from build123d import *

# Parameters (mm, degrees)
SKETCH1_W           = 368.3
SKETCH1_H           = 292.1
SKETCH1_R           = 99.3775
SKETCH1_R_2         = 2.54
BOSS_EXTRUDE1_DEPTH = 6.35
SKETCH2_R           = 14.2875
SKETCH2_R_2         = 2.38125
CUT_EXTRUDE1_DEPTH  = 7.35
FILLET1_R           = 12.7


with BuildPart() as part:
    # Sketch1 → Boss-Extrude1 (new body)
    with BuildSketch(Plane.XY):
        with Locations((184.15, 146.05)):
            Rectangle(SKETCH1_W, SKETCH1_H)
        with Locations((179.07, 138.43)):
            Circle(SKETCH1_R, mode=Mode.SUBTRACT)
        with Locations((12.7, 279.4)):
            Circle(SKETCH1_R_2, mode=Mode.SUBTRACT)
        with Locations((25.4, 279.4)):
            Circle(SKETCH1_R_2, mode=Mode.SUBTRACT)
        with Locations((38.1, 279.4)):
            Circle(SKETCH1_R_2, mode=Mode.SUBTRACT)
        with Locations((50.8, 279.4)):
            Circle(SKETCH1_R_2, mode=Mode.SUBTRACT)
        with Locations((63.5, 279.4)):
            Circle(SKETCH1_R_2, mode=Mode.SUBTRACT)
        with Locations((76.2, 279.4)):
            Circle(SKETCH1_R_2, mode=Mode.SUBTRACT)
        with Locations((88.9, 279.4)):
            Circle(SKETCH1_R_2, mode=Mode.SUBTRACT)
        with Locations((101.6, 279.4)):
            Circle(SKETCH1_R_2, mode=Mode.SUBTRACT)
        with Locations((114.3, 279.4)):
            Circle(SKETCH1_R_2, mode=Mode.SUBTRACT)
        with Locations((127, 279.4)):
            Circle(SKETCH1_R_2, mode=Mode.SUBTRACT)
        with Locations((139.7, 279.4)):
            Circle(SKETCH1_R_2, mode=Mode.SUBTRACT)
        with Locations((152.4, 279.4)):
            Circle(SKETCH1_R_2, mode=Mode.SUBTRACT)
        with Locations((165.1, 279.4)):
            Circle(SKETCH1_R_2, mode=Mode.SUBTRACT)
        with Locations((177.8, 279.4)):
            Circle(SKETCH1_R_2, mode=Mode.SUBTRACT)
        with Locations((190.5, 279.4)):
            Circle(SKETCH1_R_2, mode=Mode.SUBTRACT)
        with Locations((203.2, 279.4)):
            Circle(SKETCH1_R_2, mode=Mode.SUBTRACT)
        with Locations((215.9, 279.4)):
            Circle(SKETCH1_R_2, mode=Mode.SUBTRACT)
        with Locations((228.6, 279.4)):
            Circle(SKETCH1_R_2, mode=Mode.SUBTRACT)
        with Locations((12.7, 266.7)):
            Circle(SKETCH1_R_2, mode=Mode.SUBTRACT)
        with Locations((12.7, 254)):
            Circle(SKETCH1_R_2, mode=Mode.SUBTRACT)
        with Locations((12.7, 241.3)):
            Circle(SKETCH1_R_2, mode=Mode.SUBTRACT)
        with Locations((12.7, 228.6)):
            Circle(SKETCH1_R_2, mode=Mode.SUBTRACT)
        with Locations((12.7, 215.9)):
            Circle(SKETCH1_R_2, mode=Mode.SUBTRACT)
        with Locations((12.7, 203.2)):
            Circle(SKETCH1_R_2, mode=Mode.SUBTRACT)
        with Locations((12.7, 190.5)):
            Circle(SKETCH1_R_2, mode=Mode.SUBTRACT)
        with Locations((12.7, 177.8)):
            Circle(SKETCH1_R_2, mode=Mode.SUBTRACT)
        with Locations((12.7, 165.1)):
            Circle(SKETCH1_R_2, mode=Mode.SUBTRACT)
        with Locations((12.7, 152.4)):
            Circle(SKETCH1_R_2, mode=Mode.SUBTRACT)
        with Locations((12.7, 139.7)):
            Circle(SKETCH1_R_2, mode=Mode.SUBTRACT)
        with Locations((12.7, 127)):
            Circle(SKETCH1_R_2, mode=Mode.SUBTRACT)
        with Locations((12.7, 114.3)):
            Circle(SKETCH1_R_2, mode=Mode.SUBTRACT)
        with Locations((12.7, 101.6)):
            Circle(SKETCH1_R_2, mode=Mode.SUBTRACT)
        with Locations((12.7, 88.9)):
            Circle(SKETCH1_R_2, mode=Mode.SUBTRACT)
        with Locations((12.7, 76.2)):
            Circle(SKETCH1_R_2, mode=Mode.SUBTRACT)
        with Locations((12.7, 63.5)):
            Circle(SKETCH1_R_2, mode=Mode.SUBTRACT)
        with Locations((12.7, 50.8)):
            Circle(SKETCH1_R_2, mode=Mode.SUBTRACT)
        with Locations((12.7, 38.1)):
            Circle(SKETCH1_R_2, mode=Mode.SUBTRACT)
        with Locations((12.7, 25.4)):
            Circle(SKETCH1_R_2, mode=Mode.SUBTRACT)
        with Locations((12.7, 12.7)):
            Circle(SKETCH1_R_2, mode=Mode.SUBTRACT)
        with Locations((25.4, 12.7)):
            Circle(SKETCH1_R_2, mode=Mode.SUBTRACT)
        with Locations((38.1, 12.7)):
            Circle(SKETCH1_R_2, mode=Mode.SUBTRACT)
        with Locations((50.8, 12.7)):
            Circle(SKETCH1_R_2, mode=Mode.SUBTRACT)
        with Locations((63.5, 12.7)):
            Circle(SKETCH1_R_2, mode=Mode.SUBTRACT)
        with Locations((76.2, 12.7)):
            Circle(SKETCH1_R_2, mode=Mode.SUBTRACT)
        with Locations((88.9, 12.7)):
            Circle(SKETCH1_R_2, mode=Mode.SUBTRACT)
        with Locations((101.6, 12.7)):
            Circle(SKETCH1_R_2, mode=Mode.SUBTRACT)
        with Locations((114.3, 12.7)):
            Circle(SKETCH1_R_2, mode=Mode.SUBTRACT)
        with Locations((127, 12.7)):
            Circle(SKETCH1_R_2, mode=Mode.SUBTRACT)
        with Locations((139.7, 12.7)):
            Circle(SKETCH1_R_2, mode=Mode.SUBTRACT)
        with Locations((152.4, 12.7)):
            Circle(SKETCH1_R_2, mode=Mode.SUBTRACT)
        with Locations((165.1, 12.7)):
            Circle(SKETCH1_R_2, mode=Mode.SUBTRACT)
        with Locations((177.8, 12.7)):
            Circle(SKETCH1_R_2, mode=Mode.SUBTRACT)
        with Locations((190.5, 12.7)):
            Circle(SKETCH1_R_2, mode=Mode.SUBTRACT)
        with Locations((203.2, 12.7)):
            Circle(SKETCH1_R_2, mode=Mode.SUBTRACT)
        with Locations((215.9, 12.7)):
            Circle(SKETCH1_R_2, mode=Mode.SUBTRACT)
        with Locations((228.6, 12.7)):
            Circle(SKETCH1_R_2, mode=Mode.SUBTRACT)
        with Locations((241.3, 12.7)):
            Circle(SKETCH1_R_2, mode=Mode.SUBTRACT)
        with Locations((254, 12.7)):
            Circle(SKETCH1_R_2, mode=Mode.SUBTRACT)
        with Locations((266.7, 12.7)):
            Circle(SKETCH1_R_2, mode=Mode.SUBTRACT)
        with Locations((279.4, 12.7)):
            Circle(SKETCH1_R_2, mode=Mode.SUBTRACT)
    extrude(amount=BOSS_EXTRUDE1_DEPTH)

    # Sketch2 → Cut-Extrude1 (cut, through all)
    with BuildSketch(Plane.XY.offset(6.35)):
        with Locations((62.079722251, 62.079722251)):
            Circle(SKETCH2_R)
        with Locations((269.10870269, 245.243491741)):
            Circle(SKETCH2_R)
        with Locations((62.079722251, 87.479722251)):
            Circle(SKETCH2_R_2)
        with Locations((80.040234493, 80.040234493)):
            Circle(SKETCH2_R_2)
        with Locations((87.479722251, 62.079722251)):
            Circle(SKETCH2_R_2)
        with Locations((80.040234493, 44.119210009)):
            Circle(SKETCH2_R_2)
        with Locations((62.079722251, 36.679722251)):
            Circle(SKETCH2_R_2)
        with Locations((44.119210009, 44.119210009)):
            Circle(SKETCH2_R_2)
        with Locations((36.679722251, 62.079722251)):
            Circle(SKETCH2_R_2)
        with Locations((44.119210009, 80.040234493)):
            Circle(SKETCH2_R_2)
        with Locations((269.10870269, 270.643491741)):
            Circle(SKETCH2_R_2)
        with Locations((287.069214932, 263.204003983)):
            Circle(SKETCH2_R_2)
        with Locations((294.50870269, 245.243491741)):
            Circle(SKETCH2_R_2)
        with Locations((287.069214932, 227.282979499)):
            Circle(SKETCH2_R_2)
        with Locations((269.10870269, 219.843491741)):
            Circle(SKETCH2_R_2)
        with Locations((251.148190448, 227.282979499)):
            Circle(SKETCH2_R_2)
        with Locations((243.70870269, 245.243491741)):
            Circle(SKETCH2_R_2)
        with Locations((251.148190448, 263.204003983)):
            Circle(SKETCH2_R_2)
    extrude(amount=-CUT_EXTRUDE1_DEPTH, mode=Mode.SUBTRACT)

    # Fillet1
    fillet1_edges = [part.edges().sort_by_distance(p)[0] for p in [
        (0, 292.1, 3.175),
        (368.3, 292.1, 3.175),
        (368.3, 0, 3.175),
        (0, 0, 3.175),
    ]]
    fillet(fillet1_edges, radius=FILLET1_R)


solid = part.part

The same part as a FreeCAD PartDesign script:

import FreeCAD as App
import Part
import Sketcher
Q = App.Units.Quantity


def edges_at(feature, points):
    """Names of the edges that pass closest to the given points."""
    edges = feature.Shape.Edges
    near = lambda p: min(range(len(edges)), key=lambda i: edges[i].distToShape(Part.Vertex(*p))[0])
    return sorted({f"Edge{near(p) + 1}" for p in points})


def add_polygon(sketch, points):
    """Adds a closed chain of lines whose ends are joined by coincident constraints."""
    first, n = sketch.GeometryCount, len(points)
    for a, b in zip(points, points[1:] + points[:1]):
        sketch.addGeometry(Part.LineSegment(App.Vector(*a, 0), App.Vector(*b, 0)), False)
    for i in range(n):
        sketch.addConstraint(Sketcher.Constraint("Coincident", first + i, 2, first + (i + 1) % n, 1))

doc = App.newDocument("Part")
body = doc.addObject("PartDesign::Body", "Body")

sketch1 = doc.addObject("Sketcher::SketchObject", "Sketch")
body.addObject(sketch1)
sketch1.AttachmentSupport = (doc.XY_Plane, [""])
sketch1.MapMode = "FlatFace"
add_polygon(sketch1, [(0, 292.1), (0, 0), (368.3, 0), (368.3, 292.1)])
sketch1.addGeometry(Part.Circle(App.Vector(12.7, 12.7, 0), App.Vector(0, 0, 1), 2.54), False)
sketch1.addGeometry(Part.Circle(App.Vector(25.4, 12.7, 0), App.Vector(0, 0, 1), 2.54), False)
sketch1.addGeometry(Part.Circle(App.Vector(12.7, 25.4, 0), App.Vector(0, 0, 1), 2.54), False)
sketch1.addGeometry(Part.Circle(App.Vector(38.1, 12.7, 0), App.Vector(0, 0, 1), 2.54), False)
sketch1.addGeometry(Part.Circle(App.Vector(12.7, 38.1, 0), App.Vector(0, 0, 1), 2.54), False)
sketch1.addGeometry(Part.Circle(App.Vector(50.8, 12.7, 0), App.Vector(0, 0, 1), 2.54), False)
sketch1.addGeometry(Part.Circle(App.Vector(63.5, 12.7, 0), App.Vector(0, 0, 1), 2.54), False)
sketch1.addGeometry(Part.Circle(App.Vector(76.2, 12.7, 0), App.Vector(0, 0, 1), 2.54), False)
sketch1.addGeometry(Part.Circle(App.Vector(12.7, 50.8, 0), App.Vector(0, 0, 1), 2.54), False)
sketch1.addGeometry(Part.Circle(App.Vector(12.7, 63.5, 0), App.Vector(0, 0, 1), 2.54), False)
sketch1.addGeometry(Part.Circle(App.Vector(12.7, 76.2, 0), App.Vector(0, 0, 1), 2.54), False)
sketch1.addGeometry(Part.Circle(App.Vector(88.9, 12.7, 0), App.Vector(0, 0, 1), 2.54), False)
sketch1.addGeometry(Part.Circle(App.Vector(101.6, 12.7, 0), App.Vector(0, 0, 1), 2.54), False)
sketch1.addGeometry(Part.Circle(App.Vector(114.3, 12.7, 0), App.Vector(0, 0, 1), 2.54), False)
sketch1.addGeometry(Part.Circle(App.Vector(127, 12.7, 0), App.Vector(0, 0, 1), 2.54), False)
sketch1.addGeometry(Part.Circle(App.Vector(139.7, 12.7, 0), App.Vector(0, 0, 1), 2.54), False)
sketch1.addGeometry(Part.Circle(App.Vector(12.7, 88.9, 0), App.Vector(0, 0, 1), 2.54), False)
sketch1.addGeometry(Part.Circle(App.Vector(12.7, 101.6, 0), App.Vector(0, 0, 1), 2.54), False)
sketch1.addGeometry(Part.Circle(App.Vector(12.7, 114.3, 0), App.Vector(0, 0, 1), 2.54), False)
sketch1.addGeometry(Part.Circle(App.Vector(12.7, 127, 0), App.Vector(0, 0, 1), 2.54), False)
sketch1.addGeometry(Part.Circle(App.Vector(12.7, 139.7, 0), App.Vector(0, 0, 1), 2.54), False)
sketch1.addGeometry(Part.Circle(App.Vector(152.4, 12.7, 0), App.Vector(0, 0, 1), 2.54), False)
sketch1.addGeometry(Part.Circle(App.Vector(165.1, 12.7, 0), App.Vector(0, 0, 1), 2.54), False)
sketch1.addGeometry(Part.Circle(App.Vector(177.8, 12.7, 0), App.Vector(0, 0, 1), 2.54), False)
sketch1.addGeometry(Part.Circle(App.Vector(190.5, 12.7, 0), App.Vector(0, 0, 1), 2.54), False)
sketch1.addGeometry(Part.Circle(App.Vector(203.2, 12.7, 0), App.Vector(0, 0, 1), 2.54), False)
sketch1.addGeometry(Part.Circle(App.Vector(215.9, 12.7, 0), App.Vector(0, 0, 1), 2.54), False)
sketch1.addGeometry(Part.Circle(App.Vector(228.6, 12.7, 0), App.Vector(0, 0, 1), 2.54), False)
sketch1.addGeometry(Part.Circle(App.Vector(241.3, 12.7, 0), App.Vector(0, 0, 1), 2.54), False)
sketch1.addGeometry(Part.Circle(App.Vector(254, 12.7, 0), App.Vector(0, 0, 1), 2.54), False)
sketch1.addGeometry(Part.Circle(App.Vector(266.7, 12.7, 0), App.Vector(0, 0, 1), 2.54), False)
sketch1.addGeometry(Part.Circle(App.Vector(279.4, 12.7, 0), App.Vector(0, 0, 1), 2.54), False)
sketch1.addGeometry(Part.Circle(App.Vector(179.07, 138.43, 0), App.Vector(0, 0, 1), 99.3775), False)
sketch1.addGeometry(Part.Circle(App.Vector(12.7, 152.4, 0), App.Vector(0, 0, 1), 2.54), False)
sketch1.addGeometry(Part.Circle(App.Vector(12.7, 165.1, 0), App.Vector(0, 0, 1), 2.54), False)
sketch1.addGeometry(Part.Circle(App.Vector(12.7, 177.8, 0), App.Vector(0, 0, 1), 2.54), False)
sketch1.addGeometry(Part.Circle(App.Vector(12.7, 190.5, 0), App.Vector(0, 0, 1), 2.54), False)
sketch1.addGeometry(Part.Circle(App.Vector(12.7, 203.2, 0), App.Vector(0, 0, 1), 2.54), False)
sketch1.addGeometry(Part.Circle(App.Vector(12.7, 215.9, 0), App.Vector(0, 0, 1), 2.54), False)
sketch1.addGeometry(Part.Circle(App.Vector(12.7, 228.6, 0), App.Vector(0, 0, 1), 2.54), False)
sketch1.addGeometry(Part.Circle(App.Vector(12.7, 241.3, 0), App.Vector(0, 0, 1), 2.54), False)
sketch1.addGeometry(Part.Circle(App.Vector(12.7, 254, 0), App.Vector(0, 0, 1), 2.54), False)
sketch1.addGeometry(Part.Circle(App.Vector(12.7, 266.7, 0), App.Vector(0, 0, 1), 2.54), False)
sketch1.addGeometry(Part.Circle(App.Vector(12.7, 279.4, 0), App.Vector(0, 0, 1), 2.54), False)
sketch1.addGeometry(Part.Circle(App.Vector(25.4, 279.4, 0), App.Vector(0, 0, 1), 2.54), False)
sketch1.addGeometry(Part.Circle(App.Vector(38.1, 279.4, 0), App.Vector(0, 0, 1), 2.54), False)
sketch1.addGeometry(Part.Circle(App.Vector(50.8, 279.4, 0), App.Vector(0, 0, 1), 2.54), False)
sketch1.addGeometry(Part.Circle(App.Vector(63.5, 279.4, 0), App.Vector(0, 0, 1), 2.54), False)
sketch1.addGeometry(Part.Circle(App.Vector(76.2, 279.4, 0), App.Vector(0, 0, 1), 2.54), False)
sketch1.addGeometry(Part.Circle(App.Vector(88.9, 279.4, 0), App.Vector(0, 0, 1), 2.54), False)
sketch1.addGeometry(Part.Circle(App.Vector(101.6, 279.4, 0), App.Vector(0, 0, 1), 2.54), False)
sketch1.addGeometry(Part.Circle(App.Vector(114.3, 279.4, 0), App.Vector(0, 0, 1), 2.54), False)
sketch1.addGeometry(Part.Circle(App.Vector(127, 279.4, 0), App.Vector(0, 0, 1), 2.54), False)
sketch1.addGeometry(Part.Circle(App.Vector(139.7, 279.4, 0), App.Vector(0, 0, 1), 2.54), False)
sketch1.addGeometry(Part.Circle(App.Vector(152.4, 279.4, 0), App.Vector(0, 0, 1), 2.54), False)
sketch1.addGeometry(Part.Circle(App.Vector(165.1, 279.4, 0), App.Vector(0, 0, 1), 2.54), False)
sketch1.addGeometry(Part.Circle(App.Vector(177.8, 279.4, 0), App.Vector(0, 0, 1), 2.54), False)
sketch1.addGeometry(Part.Circle(App.Vector(190.5, 279.4, 0), App.Vector(0, 0, 1), 2.54), False)
sketch1.addGeometry(Part.Circle(App.Vector(203.2, 279.4, 0), App.Vector(0, 0, 1), 2.54), False)
sketch1.addGeometry(Part.Circle(App.Vector(215.9, 279.4, 0), App.Vector(0, 0, 1), 2.54), False)
sketch1.addGeometry(Part.Circle(App.Vector(228.6, 279.4, 0), App.Vector(0, 0, 1), 2.54), False)
sketch1.addConstraint([
    Sketcher.Constraint("Vertical", 0),
    Sketcher.Constraint("Horizontal", 1),
    Sketcher.Constraint("Vertical", 2),
    Sketcher.Constraint("Horizontal", 3),
    Sketcher.Constraint("Coincident", 0, 2, -1, 1),
    Sketcher.Constraint("Equal", 4, 5),
    Sketcher.Constraint("Equal", 5, 6),
    Sketcher.Constraint("Equal", 6, 7),
    Sketcher.Constraint("Equal", 7, 8),
    Sketcher.Constraint("Equal", 8, 9),
    Sketcher.Constraint("Equal", 9, 10),
    Sketcher.Constraint("Equal", 10, 11),
    Sketcher.Constraint("Equal", 11, 12),
    Sketcher.Constraint("Equal", 12, 13),
    Sketcher.Constraint("Equal", 13, 14),
    Sketcher.Constraint("Equal", 14, 15),
    Sketcher.Constraint("Equal", 15, 16),
    Sketcher.Constraint("Equal", 16, 17),
    Sketcher.Constraint("Equal", 17, 18),
    Sketcher.Constraint("Equal", 18, 19),
    Sketcher.Constraint("Equal", 19, 20),
    Sketcher.Constraint("Equal", 20, 21),
    Sketcher.Constraint("Equal", 21, 22),
    Sketcher.Constraint("Equal", 22, 23),
    Sketcher.Constraint("Equal", 23, 24),
    Sketcher.Constraint("Equal", 24, 25),
    Sketcher.Constraint("Equal", 25, 26),
    Sketcher.Constraint("Equal", 26, 27),
    Sketcher.Constraint("Equal", 27, 28),
    Sketcher.Constraint("Equal", 28, 29),
    Sketcher.Constraint("Equal", 29, 30),
    Sketcher.Constraint("Equal", 30, 31),
    Sketcher.Constraint("Equal", 31, 32),
    Sketcher.Constraint("Equal", 32, 33),
    Sketcher.Constraint("Equal", 33, 34),
    Sketcher.Constraint("Equal", 34, 35),
    Sketcher.Constraint("Equal", 35, 37),
    Sketcher.Constraint("Equal", 37, 38),
    Sketcher.Constraint("Equal", 38, 39),
    Sketcher.Constraint("Equal", 39, 40),
    Sketcher.Constraint("Equal", 40, 41),
    Sketcher.Constraint("Equal", 41, 42),
    Sketcher.Constraint("Equal", 42, 43),
    Sketcher.Constraint("Equal", 43, 44),
    Sketcher.Constraint("Equal", 44, 45),
    Sketcher.Constraint("Equal", 45, 46),
    Sketcher.Constraint("Equal", 46, 47),
    Sketcher.Constraint("Equal", 47, 48),
    Sketcher.Constraint("Equal", 48, 49),
    Sketcher.Constraint("Equal", 49, 50),
    Sketcher.Constraint("Equal", 50, 51),
    Sketcher.Constraint("Equal", 51, 52),
    Sketcher.Constraint("Equal", 52, 53),
    Sketcher.Constraint("Equal", 53, 54),
    Sketcher.Constraint("Equal", 54, 55),
    Sketcher.Constraint("Equal", 55, 56),
    Sketcher.Constraint("Equal", 56, 57),
    Sketcher.Constraint("Equal", 57, 58),
    Sketcher.Constraint("Equal", 58, 59),
    Sketcher.Constraint("Equal", 59, 60),
    Sketcher.Constraint("Equal", 60, 61),
    Sketcher.Constraint("Equal", 61, 62),
    Sketcher.Constraint("Equal", 62, 63),
    Sketcher.Constraint("Equal", 63, 64),
    Sketcher.Constraint("Horizontal", 4, 3, 5, 3),
    Sketcher.Constraint("Horizontal", 5, 3, 7, 3),
    Sketcher.Constraint("Horizontal", 7, 3, 9, 3),
    Sketcher.Constraint("Horizontal", 9, 3, 10, 3),
    Sketcher.Constraint("Horizontal", 10, 3, 11, 3),
    Sketcher.Constraint("Horizontal", 11, 3, 15, 3),
    Sketcher.Constraint("Horizontal", 15, 3, 16, 3),
    Sketcher.Constraint("Horizontal", 16, 3, 17, 3),
    Sketcher.Constraint("Horizontal", 17, 3, 18, 3),
    Sketcher.Constraint("Horizontal", 18, 3, 19, 3),
    Sketcher.Constraint("Horizontal", 19, 3, 25, 3),
    Sketcher.Constraint("Horizontal", 25, 3, 26, 3),
    Sketcher.Constraint("Horizontal", 26, 3, 27, 3),
    Sketcher.Constraint("Horizontal", 27, 3, 28, 3),
    Sketcher.Constraint("Horizontal", 28, 3, 29, 3),
    Sketcher.Constraint("Horizontal", 29, 3, 30, 3),
    Sketcher.Constraint("Horizontal", 30, 3, 31, 3),
    Sketcher.Constraint("Horizontal", 31, 3, 32, 3),
    Sketcher.Constraint("Horizontal", 32, 3, 33, 3),
    Sketcher.Constraint("Horizontal", 33, 3, 34, 3),
    Sketcher.Constraint("Horizontal", 34, 3, 35, 3),
    Sketcher.Constraint("Horizontal", 47, 3, 48, 3),
    Sketcher.Constraint("Horizontal", 48, 3, 49, 3),
    Sketcher.Constraint("Horizontal", 49, 3, 50, 3),
    Sketcher.Constraint("Horizontal", 50, 3, 51, 3),
    Sketcher.Constraint("Horizontal", 51, 3, 52, 3),
    Sketcher.Constraint("Horizontal", 52, 3, 53, 3),
    Sketcher.Constraint("Horizontal", 53, 3, 54, 3),
    Sketcher.Constraint("Horizontal", 54, 3, 55, 3),
    Sketcher.Constraint("Horizontal", 55, 3, 56, 3),
    Sketcher.Constraint("Horizontal", 56, 3, 57, 3),
    Sketcher.Constraint("Horizontal", 57, 3, 58, 3),
    Sketcher.Constraint("Horizontal", 58, 3, 59, 3),
    Sketcher.Constraint("Horizontal", 59, 3, 60, 3),
    Sketcher.Constraint("Horizontal", 60, 3, 61, 3),
    Sketcher.Constraint("Horizontal", 61, 3, 62, 3),
    Sketcher.Constraint("Horizontal", 62, 3, 63, 3),
    Sketcher.Constraint("Horizontal", 63, 3, 64, 3),
    Sketcher.Constraint("Vertical", 4, 3, 6, 3),
    Sketcher.Constraint("Vertical", 6, 3, 8, 3),
    Sketcher.Constraint("Vertical", 8, 3, 12, 3),
    Sketcher.Constraint("Vertical", 12, 3, 13, 3),
    Sketcher.Constraint("Vertical", 13, 3, 14, 3),
    Sketcher.Constraint("Vertical", 14, 3, 20, 3),
    Sketcher.Constraint("Vertical", 20, 3, 21, 3),
    Sketcher.Constraint("Vertical", 21, 3, 22, 3),
    Sketcher.Constraint("Vertical", 22, 3, 23, 3),
    Sketcher.Constraint("Vertical", 23, 3, 24, 3),
    Sketcher.Constraint("Vertical", 24, 3, 37, 3),
    Sketcher.Constraint("Vertical", 37, 3, 38, 3),
    Sketcher.Constraint("Vertical", 38, 3, 39, 3),
    Sketcher.Constraint("Vertical", 39, 3, 40, 3),
    Sketcher.Constraint("Vertical", 40, 3, 41, 3),
    Sketcher.Constraint("Vertical", 41, 3, 42, 3),
    Sketcher.Constraint("Vertical", 42, 3, 43, 3),
    Sketcher.Constraint("Vertical", 43, 3, 44, 3),
    Sketcher.Constraint("Vertical", 44, 3, 45, 3),
    Sketcher.Constraint("Vertical", 45, 3, 46, 3),
    Sketcher.Constraint("Vertical", 46, 3, 47, 3),
    Sketcher.Constraint("Vertical", 5, 3, 48, 3),
    Sketcher.Constraint("Vertical", 7, 3, 49, 3),
    Sketcher.Constraint("Vertical", 9, 3, 50, 3),
    Sketcher.Constraint("Vertical", 10, 3, 51, 3),
    Sketcher.Constraint("Vertical", 11, 3, 52, 3),
    Sketcher.Constraint("Vertical", 15, 3, 53, 3),
    Sketcher.Constraint("Vertical", 16, 3, 54, 3),
    Sketcher.Constraint("Vertical", 17, 3, 55, 3),
    Sketcher.Constraint("Vertical", 18, 3, 56, 3),
    Sketcher.Constraint("Vertical", 19, 3, 57, 3),
    Sketcher.Constraint("Vertical", 25, 3, 58, 3),
    Sketcher.Constraint("Vertical", 26, 3, 59, 3),
    Sketcher.Constraint("Vertical", 27, 3, 60, 3),
    Sketcher.Constraint("Vertical", 28, 3, 61, 3),
    Sketcher.Constraint("Vertical", 29, 3, 62, 3),
    Sketcher.Constraint("Vertical", 30, 3, 63, 3),
    Sketcher.Constraint("Vertical", 31, 3, 64, 3),
    Sketcher.Constraint("Diameter", 4, Q("0.2 in")),
    Sketcher.Constraint("Diameter", 36, Q("7.825 in")),
    Sketcher.Constraint("DistanceX", 1, 1, 1, 2, Q("14.5 in")),
    Sketcher.Constraint("DistanceY", 0, 2, 0, 1, Q("11.5 in")),
    Sketcher.Constraint("DistanceX", -1, 1, 5, 3, Q("1 in")),
    Sketcher.Constraint("DistanceY", -1, 1, 6, 3, Q("1 in")),
    Sketcher.Constraint("DistanceX", -1, 1, 9, 3, Q("2 in")),
    Sketcher.Constraint("DistanceX", -1, 1, 11, 3, Q("3 in")),
    Sketcher.Constraint("DistanceY", -1, 1, 12, 3, Q("2 in")),
    Sketcher.Constraint("DistanceY", -1, 1, 14, 3, Q("3 in")),
    Sketcher.Constraint("DistanceX", -1, 1, 16, 3, Q("4 in")),
    Sketcher.Constraint("DistanceX", -1, 1, 18, 3, Q("5 in")),
    Sketcher.Constraint("DistanceY", -1, 1, 21, 3, Q("4 in")),
    Sketcher.Constraint("DistanceY", -1, 1, 23, 3, Q("5 in")),
    Sketcher.Constraint("DistanceX", -1, 1, 25, 3, Q("6 in")),
    Sketcher.Constraint("DistanceX", -1, 1, 27, 3, Q("7 in")),
    Sketcher.Constraint("DistanceX", -1, 1, 29, 3, Q("8 in")),
    Sketcher.Constraint("DistanceX", -1, 1, 31, 3, Q("9 in")),
    Sketcher.Constraint("DistanceX", -1, 1, 33, 3, Q("10 in")),
    Sketcher.Constraint("DistanceX", -1, 1, 35, 3, Q("11 in")),
    Sketcher.Constraint("DistanceY", -1, 1, 37, 3, Q("6 in")),
    Sketcher.Constraint("DistanceY", -1, 1, 39, 3, Q("7 in")),
    Sketcher.Constraint("DistanceY", -1, 1, 41, 3, Q("8 in")),
    Sketcher.Constraint("DistanceY", -1, 1, 43, 3, Q("9 in")),
    Sketcher.Constraint("DistanceY", -1, 1, 45, 3, Q("10 in")),
    Sketcher.Constraint("DistanceY", -1, 1, 47, 3, Q("11 in")),
    Sketcher.Constraint("DistanceX", -1, 1, 4, 3, Q("0.5 in")),
    Sketcher.Constraint("DistanceY", -1, 1, 4, 3, Q("0.5 in")),
    Sketcher.Constraint("DistanceX", -1, 1, 7, 3, Q("1.5 in")),
    Sketcher.Constraint("DistanceY", -1, 1, 8, 3, Q("1.5 in")),
    Sketcher.Constraint("DistanceX", -1, 1, 10, 3, Q("2.5 in")),
    Sketcher.Constraint("DistanceY", -1, 1, 13, 3, Q("2.5 in")),
    Sketcher.Constraint("DistanceX", -1, 1, 15, 3, Q("3.5 in")),
    Sketcher.Constraint("DistanceX", -1, 1, 17, 3, Q("4.5 in")),
    Sketcher.Constraint("DistanceX", -1, 1, 19, 3, Q("5.5 in")),
    Sketcher.Constraint("DistanceY", -1, 1, 20, 3, Q("3.5 in")),
    Sketcher.Constraint("DistanceY", -1, 1, 22, 3, Q("4.5 in")),
    Sketcher.Constraint("DistanceY", -1, 1, 24, 3, Q("5.5 in")),
    Sketcher.Constraint("DistanceX", -1, 1, 26, 3, Q("6.5 in")),
    Sketcher.Constraint("DistanceX", -1, 1, 28, 3, Q("7.5 in")),
    Sketcher.Constraint("DistanceX", -1, 1, 30, 3, Q("8.5 in")),
    Sketcher.Constraint("DistanceX", -1, 1, 32, 3, Q("9.5 in")),
    Sketcher.Constraint("DistanceX", -1, 1, 34, 3, Q("10.5 in")),
    Sketcher.Constraint("DistanceY", -1, 1, 38, 3, Q("6.5 in")),
    Sketcher.Constraint("DistanceY", -1, 1, 40, 3, Q("7.5 in")),
    Sketcher.Constraint("DistanceY", -1, 1, 42, 3, Q("8.5 in")),
    Sketcher.Constraint("DistanceY", -1, 1, 44, 3, Q("9.5 in")),
    Sketcher.Constraint("DistanceY", -1, 1, 46, 3, Q("10.5 in")),
    Sketcher.Constraint("DistanceX", -1, 1, 36, 3, Q("7.05 in")),
    Sketcher.Constraint("DistanceY", -1, 1, 36, 3, Q("5.45 in")),
])
pad1 = doc.addObject("PartDesign::Pad", "Pad")
body.addObject(pad1)
pad1.Profile = sketch1
pad1.Length = Q("0.25 in")

sketch2 = doc.addObject("Sketcher::SketchObject", "Sketch001")
body.addObject(sketch2)
sketch2.AttachmentSupport = (doc.XY_Plane, [""])
sketch2.MapMode = "FlatFace"
sketch2.AttachmentOffset = App.Placement(App.Vector(0, 0, 0.25 * 25.4), App.Rotation())
sketch2.addGeometry([
    Part.Circle(App.Vector(62.079722, 62.079722, 0), App.Vector(0, 0, 1), 14.2875),
    Part.Circle(App.Vector(269.108703, 245.243492, 0), App.Vector(0, 0, 1), 14.2875),
    Part.Circle(App.Vector(62.079722, 87.479722, 0), App.Vector(0, 0, 1), 2.38125),
    Part.Circle(App.Vector(80.040234, 80.040234, 0), App.Vector(0, 0, 1), 2.38125),
    Part.Circle(App.Vector(87.479722, 62.079722, 0), App.Vector(0, 0, 1), 2.38125),
    Part.Circle(App.Vector(80.040234, 44.11921, 0), App.Vector(0, 0, 1), 2.38125),
    Part.Circle(App.Vector(62.079722, 36.679722, 0), App.Vector(0, 0, 1), 2.38125),
    Part.Circle(App.Vector(44.11921, 44.11921, 0), App.Vector(0, 0, 1), 2.38125),
    Part.Circle(App.Vector(36.679722, 62.079722, 0), App.Vector(0, 0, 1), 2.38125),
    Part.Circle(App.Vector(44.11921, 80.040234, 0), App.Vector(0, 0, 1), 2.38125),
    Part.Circle(App.Vector(269.108703, 270.643492, 0), App.Vector(0, 0, 1), 2.38125),
    Part.Circle(App.Vector(287.069215, 263.204004, 0), App.Vector(0, 0, 1), 2.38125),
    Part.Circle(App.Vector(294.508703, 245.243492, 0), App.Vector(0, 0, 1), 2.38125),
    Part.Circle(App.Vector(287.069215, 227.282979, 0), App.Vector(0, 0, 1), 2.38125),
    Part.Circle(App.Vector(269.108703, 219.843492, 0), App.Vector(0, 0, 1), 2.38125),
    Part.Circle(App.Vector(251.14819, 227.282979, 0), App.Vector(0, 0, 1), 2.38125),
    Part.Circle(App.Vector(243.708703, 245.243492, 0), App.Vector(0, 0, 1), 2.38125),
    Part.Circle(App.Vector(251.14819, 263.204004, 0), App.Vector(0, 0, 1), 2.38125),
], False)
sketch2.addConstraint([
    Sketcher.Constraint("Equal", 0, 1),
    Sketcher.Constraint("Equal", 2, 3),
    Sketcher.Constraint("Equal", 3, 4),
    Sketcher.Constraint("Equal", 4, 5),
    Sketcher.Constraint("Equal", 5, 6),
    Sketcher.Constraint("Equal", 6, 7),
    Sketcher.Constraint("Equal", 7, 8),
    Sketcher.Constraint("Equal", 8, 9),
    Sketcher.Constraint("Equal", 9, 10),
    Sketcher.Constraint("Equal", 10, 11),
    Sketcher.Constraint("Equal", 11, 12),
    Sketcher.Constraint("Equal", 12, 13),
    Sketcher.Constraint("Equal", 13, 14),
    Sketcher.Constraint("Equal", 14, 15),
    Sketcher.Constraint("Equal", 15, 16),
    Sketcher.Constraint("Equal", 16, 17),
    Sketcher.Constraint("Horizontal", 0, 3, 4, 3),
    Sketcher.Constraint("Horizontal", 5, 3, 7, 3),
    Sketcher.Constraint("Horizontal", 4, 3, 8, 3),
    Sketcher.Constraint("Horizontal", 3, 3, 9, 3),
    Sketcher.Constraint("Horizontal", 1, 3, 12, 3),
    Sketcher.Constraint("Horizontal", 13, 3, 15, 3),
    Sketcher.Constraint("Horizontal", 12, 3, 16, 3),
    Sketcher.Constraint("Horizontal", 11, 3, 17, 3),
    Sketcher.Constraint("Vertical", 0, 3, 2, 3),
    Sketcher.Constraint("Vertical", 3, 3, 5, 3),
    Sketcher.Constraint("Vertical", 2, 3, 6, 3),
    Sketcher.Constraint("Vertical", 7, 3, 9, 3),
    Sketcher.Constraint("Vertical", 1, 3, 10, 3),
    Sketcher.Constraint("Vertical", 11, 3, 13, 3),
    Sketcher.Constraint("Vertical", 10, 3, 14, 3),
    Sketcher.Constraint("Vertical", 15, 3, 17, 3),
    Sketcher.Constraint("Diameter", 0, Q("1.125 in")),
    Sketcher.Constraint("Diameter", 2, Q("0.1875 in")),
    Sketcher.Constraint("DistanceY", 0, 3, 2, 3, Q("1 in")),
    Sketcher.Constraint("DistanceX", 0, 3, 4, 3, Q("1 in")),
    Sketcher.Constraint("DistanceY", 6, 3, 0, 3, Q("1 in")),
    Sketcher.Constraint("DistanceX", 8, 3, 0, 3, Q("1 in")),
    Sketcher.Constraint("DistanceY", 1, 3, 10, 3, Q("1 in")),
    Sketcher.Constraint("DistanceX", 1, 3, 12, 3, Q("1 in")),
    Sketcher.Constraint("DistanceY", 14, 3, 1, 3, Q("1 in")),
    Sketcher.Constraint("DistanceX", 16, 3, 1, 3, Q("1 in")),
    Sketcher.Constraint("DistanceY", -1, 1, 1, 3, Q("245.243492 mm")),
    Sketcher.Constraint("DistanceY", -1, 1, 5, 3, Q("44.11921 mm")),
    Sketcher.Constraint("DistanceX", -1, 1, 7, 3, Q("44.11921 mm")),
    Sketcher.Constraint("DistanceY", -1, 1, 13, 3, Q("227.282979 mm")),
    Sketcher.Constraint("DistanceX", -1, 1, 15, 3, Q("251.14819 mm")),
    Sketcher.Constraint("DistanceX", 0, 3, 1, 3, Q("207.02898 mm")),
    Sketcher.Constraint("DistanceY", 0, 3, 1, 3, Q("183.163769 mm")),
    Sketcher.Constraint("DistanceX", 3, 3, 1, 3, Q("189.068468 mm")),
    Sketcher.Constraint("DistanceX", 3, 3, 11, 3, Q("207.02898 mm")),
    Sketcher.Constraint("DistanceY", 3, 3, 11, 3, Q("183.163769 mm")),
    Sketcher.Constraint("DistanceY", 4, 3, 11, 3, Q("201.124282 mm")),
    Sketcher.Constraint("DistanceX", -1, 1, 0, 3, Q("62.079722 mm")),
])
pocket1 = doc.addObject("PartDesign::Pocket", "Pocket")
body.addObject(pocket1)
pocket1.Profile = sketch2
pocket1.Type = "ThroughAll"
doc.recompute()

fillet = doc.addObject("PartDesign::Fillet", "Fillet")
body.addObject(fillet)
fillet.Base = (pocket1, edges_at(pocket1, [
    (0, 292.1, 3.175),
    (368.3, 292.1, 3.175),
    (368.3, 0, 3.175),
    (0, 0, 3.175),
]))
fillet.Radius = Q("0.5 in")

doc.recompute()
